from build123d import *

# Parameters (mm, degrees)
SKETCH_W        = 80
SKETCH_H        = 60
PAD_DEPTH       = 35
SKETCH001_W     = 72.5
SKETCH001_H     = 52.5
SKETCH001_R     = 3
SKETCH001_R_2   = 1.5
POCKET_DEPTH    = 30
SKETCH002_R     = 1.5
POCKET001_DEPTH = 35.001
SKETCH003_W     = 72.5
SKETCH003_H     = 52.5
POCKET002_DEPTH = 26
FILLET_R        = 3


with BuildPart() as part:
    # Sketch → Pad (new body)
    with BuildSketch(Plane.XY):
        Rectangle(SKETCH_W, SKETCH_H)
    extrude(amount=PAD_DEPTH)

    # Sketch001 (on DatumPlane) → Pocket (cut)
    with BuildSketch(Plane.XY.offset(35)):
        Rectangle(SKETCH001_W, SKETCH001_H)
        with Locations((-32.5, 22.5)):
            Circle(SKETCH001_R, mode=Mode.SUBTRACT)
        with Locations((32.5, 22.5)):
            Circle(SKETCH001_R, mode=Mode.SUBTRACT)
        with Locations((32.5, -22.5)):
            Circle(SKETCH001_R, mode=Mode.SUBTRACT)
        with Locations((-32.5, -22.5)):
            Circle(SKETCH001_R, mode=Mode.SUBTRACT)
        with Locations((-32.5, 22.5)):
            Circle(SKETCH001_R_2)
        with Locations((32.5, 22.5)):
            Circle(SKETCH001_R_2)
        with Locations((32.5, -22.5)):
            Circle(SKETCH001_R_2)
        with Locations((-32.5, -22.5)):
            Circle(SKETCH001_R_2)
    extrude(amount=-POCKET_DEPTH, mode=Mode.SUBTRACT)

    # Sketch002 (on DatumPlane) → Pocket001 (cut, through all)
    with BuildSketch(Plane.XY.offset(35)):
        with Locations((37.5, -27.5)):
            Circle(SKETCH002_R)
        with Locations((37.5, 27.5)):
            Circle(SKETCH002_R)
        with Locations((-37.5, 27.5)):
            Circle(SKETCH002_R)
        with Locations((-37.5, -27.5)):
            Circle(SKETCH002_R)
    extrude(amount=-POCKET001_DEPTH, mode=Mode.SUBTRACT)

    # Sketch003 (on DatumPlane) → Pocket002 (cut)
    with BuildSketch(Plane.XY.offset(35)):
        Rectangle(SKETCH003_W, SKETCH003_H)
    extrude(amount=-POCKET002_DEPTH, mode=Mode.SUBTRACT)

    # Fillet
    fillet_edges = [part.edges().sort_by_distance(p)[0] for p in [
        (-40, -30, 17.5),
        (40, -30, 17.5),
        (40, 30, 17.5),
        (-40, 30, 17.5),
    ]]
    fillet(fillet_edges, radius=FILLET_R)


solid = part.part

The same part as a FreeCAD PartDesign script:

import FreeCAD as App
import Part
import Sketcher
Q = App.Units.Quantity


def edges_at(feature, points):
    """Names of the edges that pass closest to the given points."""
    edges = feature.Shape.Edges
    near = lambda p: min(range(len(edges)), key=lambda i: edges[i].distToShape(Part.Vertex(*p))[0])
    return sorted({f"Edge{near(p) + 1}" for p in points})

doc = App.newDocument("Part")
params = doc.addObject("Spreadsheet::Sheet", "Params")
for row, (alias, value) in enumerate([
    ("sketch1_width", "80 mm"),
    ("sketch1_height", "60 mm"),
    ("pad1_length", "35 mm"),
    ("sketch2_diameter", "6 mm"),
    ("sketch2_diameter2", "3 mm"),
    ("sketch2_width", "72.5 mm"),
    ("sketch2_height", "52.5 mm"),
    ("pocket1_length", "30 mm"),
    ("sketch3_diameter", "3 mm"),
    ("sketch4_width", "72.5 mm"),
    ("sketch4_height", "52.5 mm"),
    ("pocket3_length", "26 mm"),
    ("fillet_radius", "3 mm"),
], start=1):
    params.set(f"A{row}", alias)
    params.set(f"B{row}", "=" + value)
    params.setAlias(f"B{row}", alias)

body = doc.addObject("PartDesign::Body", "Body")

# Sketch on XY plane
sketch1 = body.newObject("Sketcher::SketchObject", "Sketch")
sketch1.AttachmentSupport = (doc.getObject("XY_Plane"), [""])
sketch1.MapMode = "FlatFace"
sketch1.addGeometry(Part.LineSegment(App.Vector(-40, 30, 0), App.Vector(-40, -30, 0)), False)
sketch1.addGeometry(Part.LineSegment(App.Vector(-40, -30, 0), App.Vector(40, -30, 0)), False)
sketch1.addGeometry(Part.LineSegment(App.Vector(40, -30, 0), App.Vector(40, 30, 0)), False)
sketch1.addGeometry(Part.LineSegment(App.Vector(40, 30, 0), App.Vector(-40, 30, 0)), False)
sketch1.addConstraint(Sketcher.Constraint("Coincident", 0, 2, 1, 1))
sketch1.addConstraint(Sketcher.Constraint("Coincident", 1, 2, 2, 1))
sketch1.addConstraint(Sketcher.Constraint("Coincident", 2, 2, 3, 1))
sketch1.addConstraint(Sketcher.Constraint("Coincident", 3, 2, 0, 1))
sketch1.addConstraint(Sketcher.Constraint("Vertical", 0))
sketch1.addConstraint(Sketcher.Constraint("Horizontal", 1))
sketch1.addConstraint(Sketcher.Constraint("Vertical", 2))
sketch1.addConstraint(Sketcher.Constraint("Horizontal", 3))
sketch1.addConstraint(Sketcher.Constraint("Symmetric", 0, 2, 2, 2, -1, 1))
sketch1.addConstraint(Sketcher.Constraint("DistanceX", 1, 1, 1, 2, Q("80 mm")))
sketch1.addConstraint(Sketcher.Constraint("DistanceY", 0, 2, 0, 1, Q("60 mm")))
sketch1.setExpression("Constraints[9]", "Params.sketch1_width")
sketch1.setExpression("Constraints[10]", "Params.sketch1_height")
pad1 = body.newObject("PartDesign::Pad", "Pad")
pad1.Profile = sketch1
pad1.setExpression("Length", "Params.pad1_length")

# Sketch on XY plane
sketch2 = body.newObject("Sketcher::SketchObject", "Sketch001")
sketch2.AttachmentSupport = (doc.getObject("XY_Plane"), [""])
sketch2.MapMode = "FlatFace"
sketch2.AttachmentOffset = App.Placement(App.Vector(0, 0, 35), App.Rotation())
sketch2.addGeometry(Part.LineSegment(App.Vector(-36.25, 26.25, 0), App.Vector(-36.25, -26.25, 0)), False)
sketch2.addGeometry(Part.LineSegment(App.Vector(-36.25, -26.25, 0), App.Vector(36.25, -26.25, 0)), False)
sketch2.addGeometry(Part.LineSegment(App.Vector(36.25, -26.25, 0), App.Vector(36.25, 26.25, 0)), False)
sketch2.addGeometry(Part.LineSegment(App.Vector(36.25, 26.25, 0), App.Vector(-36.25, 26.25, 0)), False)
sketch2.addGeometry(Part.Circle(App.Vector(-32.5, -22.5, 0), App.Vector(0, 0, 1), 3), False)
sketch2.addGeometry(Part.Circle(App.Vector(32.5, -22.5, 0), App.Vector(0, 0, 1), 3), False)
sketch2.addGeometry(Part.Circle(App.Vector(-32.5, 22.5, 0), App.Vector(0, 0, 1), 3), False)
sketch2.addGeometry(Part.Circle(App.Vector(32.5, 22.5, 0), App.Vector(0, 0, 1), 3), False)
sketch2.addGeometry(Part.Circle(App.Vector(-32.5, 22.5, 0), App.Vector(0, 0, 1), 1.5), False)
sketch2.addGeometry(Part.Circle(App.Vector(32.5, 22.5, 0), App.Vector(0, 0, 1), 1.5), False)
sketch2.addGeometry(Part.Circle(App.Vector(32.5, -22.5, 0), App.Vector(0, 0, 1), 1.5), False)
sketch2.addGeometry(Part.Circle(App.Vector(-32.5, -22.5, 0), App.Vector(0, 0, 1), 1.5), False)
sketch2.addConstraint(Sketcher.Constraint("Coincident", 0, 2, 1, 1))
sketch2.addConstraint(Sketcher.Constraint("Coincident", 1, 2, 2, 1))
sketch2.addConstraint(Sketcher.Constraint("Coincident", 2, 2, 3, 1))
sketch2.addConstraint(Sketcher.Constraint("Coincident", 3, 2, 0, 1))
sketch2.addConstraint(Sketcher.Constraint("Vertical", 0))
sketch2.addConstraint(Sketcher.Constraint("Horizontal", 1))
sketch2.addConstraint(Sketcher.Constraint("Vertical", 2))
sketch2.addConstraint(Sketcher.Constraint("Horizontal", 3))
sketch2.addConstraint(Sketcher.Constraint("Coincident", 8, 3, 6, 3))
sketch2.addConstraint(Sketcher.Constraint("Coincident", 9, 3, 7, 3))
sketch2.addConstraint(Sketcher.Constraint("Coincident", 10, 3, 5, 3))
sketch2.addConstraint(Sketcher.Constraint("Coincident", 11, 3, 4, 3))
sketch2.addConstraint(Sketcher.Constraint("Equal", 4, 5))
sketch2.addConstraint(Sketcher.Constraint("Equal", 5, 6))
sketch2.addConstraint(Sketcher.Constraint("Equal", 6, 7))
sketch2.addConstraint(Sketcher.Constraint("Equal", 8, 9))
sketch2.addConstraint(Sketcher.Constraint("Equal", 9, 10))
sketch2.addConstraint(Sketcher.Constraint("Equal", 10, 11))
sketch2.addConstraint(Sketcher.Constraint("Symmetric", 5, 3, 6, 3, -1, 1))
sketch2.addConstraint(Sketcher.Constraint("Symmetric", 4, 3, 7, 3, -1, 1))
sketch2.addConstraint(Sketcher.Constraint("Symmetric", 0, 2, 2, 2, -1, 1))
sketch2.addConstraint(Sketcher.Constraint("Symmetric", 4, 3, 5, 3, -2))
sketch2.addConstraint(Sketcher.Constraint("Diameter", 4, Q("6 mm")))
sketch2.addConstraint(Sketcher.Constraint("Diameter", 8, Q("3 mm")))
sketch2.addConstraint(Sketcher.Constraint("DistanceX", 1, 1, 1, 2, Q("72.5 mm")))
sketch2.addConstraint(Sketcher.Constraint("DistanceY", 0, 2, 0, 1, Q("52.5 mm")))
sketch2.addConstraint(Sketcher.Constraint("DistanceX", 4, 3, 5, 3, Q("65 mm")))
sketch2.addConstraint(Sketcher.Constraint("DistanceY", 4, 3, 6, 3, Q("45 mm")))
sketch2.setExpression("Constraints[22]", "Params.sketch2_diameter")
sketch2.setExpression("Constraints[23]", "Params.sketch2_diameter2")
sketch2.setExpression("Constraints[24]", "Params.sketch2_width")
sketch2.setExpression("Constraints[25]", "Params.sketch2_height")
pocket1 = body.newObject("PartDesign::Pocket", "Pocket")
pocket1.Profile = sketch2
pocket1.setExpression("Length", "Params.pocket1_length")

# Sketch on XY plane
sketch3 = body.newObject("Sketcher::SketchObject", "Sketch002")
sketch3.AttachmentSupport = (doc.getObject("XY_Plane"), [""])
sketch3.MapMode = "FlatFace"
sketch3.AttachmentOffset = App.Placement(App.Vector(0, 0, 35), App.Rotation())
sketch3.addGeometry(Part.Circle(App.Vector(37.5, -27.5, 0), App.Vector(0, 0, 1), 1.5), False)
sketch3.addGeometry(Part.Circle(App.Vector(37.5, 27.5, 0), App.Vector(0, 0, 1), 1.5), False)
sketch3.addGeometry(Part.Circle(App.Vector(-37.5, 27.5, 0), App.Vector(0, 0, 1), 1.5), False)
sketch3.addGeometry(Part.Circle(App.Vector(-37.5, -27.5, 0), App.Vector(0, 0, 1), 1.5), False)
sketch3.addConstraint(Sketcher.Constraint("Equal", 0, 1))
sketch3.addConstraint(Sketcher.Constraint("Equal", 1, 2))
sketch3.addConstraint(Sketcher.Constraint("Equal", 2, 3))
sketch3.addConstraint(Sketcher.Constraint("Symmetric", 0, 3, 2, 3, -1, 1))
sketch3.addConstraint(Sketcher.Constraint("Symmetric", 1, 3, 3, 3, -1, 1))
sketch3.addConstraint(Sketcher.Constraint("Symmetric", 1, 3, 2, 3, -2))
sketch3.addConstraint(Sketcher.Constraint("Diameter", 0, Q("3 mm")))
sketch3.addConstraint(Sketcher.Constraint("DistanceY", 0, 3, 1, 3, Q("55 mm")))
sketch3.addConstraint(Sketcher.Constraint("DistanceX", 2, 3, 1, 3, Q("75 mm")))
sketch3.setExpression("Constraints[6]", "Params.sketch3_diameter")
pocket2 = body.newObject("PartDesign::Pocket", "Pocket001")
pocket2.Profile = sketch3
pocket2.Type = "ThroughAll"

# Sketch on XY plane
sketch4 = body.newObject("Sketcher::SketchObject", "Sketch003")
sketch4.AttachmentSupport = (doc.getObject("XY_Plane"), [""])
sketch4.MapMode = "FlatFace"
sketch4.AttachmentOffset = App.Placement(App.Vector(0, 0, 35), App.Rotation())
sketch4.addGeometry(Part.LineSegment(App.Vector(-36.25, 26.25, 0), App.Vector(-36.25, -26.25, 0)), False)
sketch4.addGeometry(Part.LineSegment(App.Vector(-36.25, -26.25, 0), App.Vector(36.25, -26.25, 0)), False)
sketch4.addGeometry(Part.LineSegment(App.Vector(36.25, -26.25, 0), App.Vector(36.25, 26.25, 0)), False)
sketch4.addGeometry(Part.LineSegment(App.Vector(36.25, 26.25, 0), App.Vector(-36.25, 26.25, 0)), False)
sketch4.addConstraint(Sketcher.Constraint("Coincident", 0, 2, 1, 1))
sketch4.addConstraint(Sketcher.Constraint("Coincident", 1, 2, 2, 1))
sketch4.addConstraint(Sketcher.Constraint("Coincident", 2, 2, 3, 1))
sketch4.addConstraint(Sketcher.Constraint("Coincident", 3, 2, 0, 1))
sketch4.addConstraint(Sketcher.Constraint("Vertical", 0))
sketch4.addConstraint(Sketcher.Constraint("Horizontal", 1))
sketch4.addConstraint(Sketcher.Constraint("Vertical", 2))
sketch4.addConstraint(Sketcher.Constraint("Horizontal", 3))
sketch4.addConstraint(Sketcher.Constraint("Symmetric", 0, 2, 2, 2, -1, 1))
sketch4.addConstraint(Sketcher.Constraint("DistanceX", 1, 1, 1, 2, Q("72.5 mm")))
sketch4.addConstraint(Sketcher.Constraint("DistanceY", 0, 2, 0, 1, Q("52.5 mm")))
sketch4.setExpression("Constraints[9]", "Params.sketch4_width")
sketch4.setExpression("Constraints[10]", "Params.sketch4_height")
pocket3 = body.newObject("PartDesign::Pocket", "Pocket002")
pocket3.Profile = sketch4
pocket3.setExpression("Length", "Params.pocket3_length")
doc.recompute()

fillet = body.newObject("PartDesign::Fillet", "Fillet")
fillet.Base = (pocket3, edges_at(pocket3, [
    (-40, -30, 17.5),
    (40, -30, 17.5),
    (40, 30, 17.5),
    (-40, 30, 17.5),
]))
fillet.setExpression("Radius", "Params.fillet_radius")

doc.recompute()
